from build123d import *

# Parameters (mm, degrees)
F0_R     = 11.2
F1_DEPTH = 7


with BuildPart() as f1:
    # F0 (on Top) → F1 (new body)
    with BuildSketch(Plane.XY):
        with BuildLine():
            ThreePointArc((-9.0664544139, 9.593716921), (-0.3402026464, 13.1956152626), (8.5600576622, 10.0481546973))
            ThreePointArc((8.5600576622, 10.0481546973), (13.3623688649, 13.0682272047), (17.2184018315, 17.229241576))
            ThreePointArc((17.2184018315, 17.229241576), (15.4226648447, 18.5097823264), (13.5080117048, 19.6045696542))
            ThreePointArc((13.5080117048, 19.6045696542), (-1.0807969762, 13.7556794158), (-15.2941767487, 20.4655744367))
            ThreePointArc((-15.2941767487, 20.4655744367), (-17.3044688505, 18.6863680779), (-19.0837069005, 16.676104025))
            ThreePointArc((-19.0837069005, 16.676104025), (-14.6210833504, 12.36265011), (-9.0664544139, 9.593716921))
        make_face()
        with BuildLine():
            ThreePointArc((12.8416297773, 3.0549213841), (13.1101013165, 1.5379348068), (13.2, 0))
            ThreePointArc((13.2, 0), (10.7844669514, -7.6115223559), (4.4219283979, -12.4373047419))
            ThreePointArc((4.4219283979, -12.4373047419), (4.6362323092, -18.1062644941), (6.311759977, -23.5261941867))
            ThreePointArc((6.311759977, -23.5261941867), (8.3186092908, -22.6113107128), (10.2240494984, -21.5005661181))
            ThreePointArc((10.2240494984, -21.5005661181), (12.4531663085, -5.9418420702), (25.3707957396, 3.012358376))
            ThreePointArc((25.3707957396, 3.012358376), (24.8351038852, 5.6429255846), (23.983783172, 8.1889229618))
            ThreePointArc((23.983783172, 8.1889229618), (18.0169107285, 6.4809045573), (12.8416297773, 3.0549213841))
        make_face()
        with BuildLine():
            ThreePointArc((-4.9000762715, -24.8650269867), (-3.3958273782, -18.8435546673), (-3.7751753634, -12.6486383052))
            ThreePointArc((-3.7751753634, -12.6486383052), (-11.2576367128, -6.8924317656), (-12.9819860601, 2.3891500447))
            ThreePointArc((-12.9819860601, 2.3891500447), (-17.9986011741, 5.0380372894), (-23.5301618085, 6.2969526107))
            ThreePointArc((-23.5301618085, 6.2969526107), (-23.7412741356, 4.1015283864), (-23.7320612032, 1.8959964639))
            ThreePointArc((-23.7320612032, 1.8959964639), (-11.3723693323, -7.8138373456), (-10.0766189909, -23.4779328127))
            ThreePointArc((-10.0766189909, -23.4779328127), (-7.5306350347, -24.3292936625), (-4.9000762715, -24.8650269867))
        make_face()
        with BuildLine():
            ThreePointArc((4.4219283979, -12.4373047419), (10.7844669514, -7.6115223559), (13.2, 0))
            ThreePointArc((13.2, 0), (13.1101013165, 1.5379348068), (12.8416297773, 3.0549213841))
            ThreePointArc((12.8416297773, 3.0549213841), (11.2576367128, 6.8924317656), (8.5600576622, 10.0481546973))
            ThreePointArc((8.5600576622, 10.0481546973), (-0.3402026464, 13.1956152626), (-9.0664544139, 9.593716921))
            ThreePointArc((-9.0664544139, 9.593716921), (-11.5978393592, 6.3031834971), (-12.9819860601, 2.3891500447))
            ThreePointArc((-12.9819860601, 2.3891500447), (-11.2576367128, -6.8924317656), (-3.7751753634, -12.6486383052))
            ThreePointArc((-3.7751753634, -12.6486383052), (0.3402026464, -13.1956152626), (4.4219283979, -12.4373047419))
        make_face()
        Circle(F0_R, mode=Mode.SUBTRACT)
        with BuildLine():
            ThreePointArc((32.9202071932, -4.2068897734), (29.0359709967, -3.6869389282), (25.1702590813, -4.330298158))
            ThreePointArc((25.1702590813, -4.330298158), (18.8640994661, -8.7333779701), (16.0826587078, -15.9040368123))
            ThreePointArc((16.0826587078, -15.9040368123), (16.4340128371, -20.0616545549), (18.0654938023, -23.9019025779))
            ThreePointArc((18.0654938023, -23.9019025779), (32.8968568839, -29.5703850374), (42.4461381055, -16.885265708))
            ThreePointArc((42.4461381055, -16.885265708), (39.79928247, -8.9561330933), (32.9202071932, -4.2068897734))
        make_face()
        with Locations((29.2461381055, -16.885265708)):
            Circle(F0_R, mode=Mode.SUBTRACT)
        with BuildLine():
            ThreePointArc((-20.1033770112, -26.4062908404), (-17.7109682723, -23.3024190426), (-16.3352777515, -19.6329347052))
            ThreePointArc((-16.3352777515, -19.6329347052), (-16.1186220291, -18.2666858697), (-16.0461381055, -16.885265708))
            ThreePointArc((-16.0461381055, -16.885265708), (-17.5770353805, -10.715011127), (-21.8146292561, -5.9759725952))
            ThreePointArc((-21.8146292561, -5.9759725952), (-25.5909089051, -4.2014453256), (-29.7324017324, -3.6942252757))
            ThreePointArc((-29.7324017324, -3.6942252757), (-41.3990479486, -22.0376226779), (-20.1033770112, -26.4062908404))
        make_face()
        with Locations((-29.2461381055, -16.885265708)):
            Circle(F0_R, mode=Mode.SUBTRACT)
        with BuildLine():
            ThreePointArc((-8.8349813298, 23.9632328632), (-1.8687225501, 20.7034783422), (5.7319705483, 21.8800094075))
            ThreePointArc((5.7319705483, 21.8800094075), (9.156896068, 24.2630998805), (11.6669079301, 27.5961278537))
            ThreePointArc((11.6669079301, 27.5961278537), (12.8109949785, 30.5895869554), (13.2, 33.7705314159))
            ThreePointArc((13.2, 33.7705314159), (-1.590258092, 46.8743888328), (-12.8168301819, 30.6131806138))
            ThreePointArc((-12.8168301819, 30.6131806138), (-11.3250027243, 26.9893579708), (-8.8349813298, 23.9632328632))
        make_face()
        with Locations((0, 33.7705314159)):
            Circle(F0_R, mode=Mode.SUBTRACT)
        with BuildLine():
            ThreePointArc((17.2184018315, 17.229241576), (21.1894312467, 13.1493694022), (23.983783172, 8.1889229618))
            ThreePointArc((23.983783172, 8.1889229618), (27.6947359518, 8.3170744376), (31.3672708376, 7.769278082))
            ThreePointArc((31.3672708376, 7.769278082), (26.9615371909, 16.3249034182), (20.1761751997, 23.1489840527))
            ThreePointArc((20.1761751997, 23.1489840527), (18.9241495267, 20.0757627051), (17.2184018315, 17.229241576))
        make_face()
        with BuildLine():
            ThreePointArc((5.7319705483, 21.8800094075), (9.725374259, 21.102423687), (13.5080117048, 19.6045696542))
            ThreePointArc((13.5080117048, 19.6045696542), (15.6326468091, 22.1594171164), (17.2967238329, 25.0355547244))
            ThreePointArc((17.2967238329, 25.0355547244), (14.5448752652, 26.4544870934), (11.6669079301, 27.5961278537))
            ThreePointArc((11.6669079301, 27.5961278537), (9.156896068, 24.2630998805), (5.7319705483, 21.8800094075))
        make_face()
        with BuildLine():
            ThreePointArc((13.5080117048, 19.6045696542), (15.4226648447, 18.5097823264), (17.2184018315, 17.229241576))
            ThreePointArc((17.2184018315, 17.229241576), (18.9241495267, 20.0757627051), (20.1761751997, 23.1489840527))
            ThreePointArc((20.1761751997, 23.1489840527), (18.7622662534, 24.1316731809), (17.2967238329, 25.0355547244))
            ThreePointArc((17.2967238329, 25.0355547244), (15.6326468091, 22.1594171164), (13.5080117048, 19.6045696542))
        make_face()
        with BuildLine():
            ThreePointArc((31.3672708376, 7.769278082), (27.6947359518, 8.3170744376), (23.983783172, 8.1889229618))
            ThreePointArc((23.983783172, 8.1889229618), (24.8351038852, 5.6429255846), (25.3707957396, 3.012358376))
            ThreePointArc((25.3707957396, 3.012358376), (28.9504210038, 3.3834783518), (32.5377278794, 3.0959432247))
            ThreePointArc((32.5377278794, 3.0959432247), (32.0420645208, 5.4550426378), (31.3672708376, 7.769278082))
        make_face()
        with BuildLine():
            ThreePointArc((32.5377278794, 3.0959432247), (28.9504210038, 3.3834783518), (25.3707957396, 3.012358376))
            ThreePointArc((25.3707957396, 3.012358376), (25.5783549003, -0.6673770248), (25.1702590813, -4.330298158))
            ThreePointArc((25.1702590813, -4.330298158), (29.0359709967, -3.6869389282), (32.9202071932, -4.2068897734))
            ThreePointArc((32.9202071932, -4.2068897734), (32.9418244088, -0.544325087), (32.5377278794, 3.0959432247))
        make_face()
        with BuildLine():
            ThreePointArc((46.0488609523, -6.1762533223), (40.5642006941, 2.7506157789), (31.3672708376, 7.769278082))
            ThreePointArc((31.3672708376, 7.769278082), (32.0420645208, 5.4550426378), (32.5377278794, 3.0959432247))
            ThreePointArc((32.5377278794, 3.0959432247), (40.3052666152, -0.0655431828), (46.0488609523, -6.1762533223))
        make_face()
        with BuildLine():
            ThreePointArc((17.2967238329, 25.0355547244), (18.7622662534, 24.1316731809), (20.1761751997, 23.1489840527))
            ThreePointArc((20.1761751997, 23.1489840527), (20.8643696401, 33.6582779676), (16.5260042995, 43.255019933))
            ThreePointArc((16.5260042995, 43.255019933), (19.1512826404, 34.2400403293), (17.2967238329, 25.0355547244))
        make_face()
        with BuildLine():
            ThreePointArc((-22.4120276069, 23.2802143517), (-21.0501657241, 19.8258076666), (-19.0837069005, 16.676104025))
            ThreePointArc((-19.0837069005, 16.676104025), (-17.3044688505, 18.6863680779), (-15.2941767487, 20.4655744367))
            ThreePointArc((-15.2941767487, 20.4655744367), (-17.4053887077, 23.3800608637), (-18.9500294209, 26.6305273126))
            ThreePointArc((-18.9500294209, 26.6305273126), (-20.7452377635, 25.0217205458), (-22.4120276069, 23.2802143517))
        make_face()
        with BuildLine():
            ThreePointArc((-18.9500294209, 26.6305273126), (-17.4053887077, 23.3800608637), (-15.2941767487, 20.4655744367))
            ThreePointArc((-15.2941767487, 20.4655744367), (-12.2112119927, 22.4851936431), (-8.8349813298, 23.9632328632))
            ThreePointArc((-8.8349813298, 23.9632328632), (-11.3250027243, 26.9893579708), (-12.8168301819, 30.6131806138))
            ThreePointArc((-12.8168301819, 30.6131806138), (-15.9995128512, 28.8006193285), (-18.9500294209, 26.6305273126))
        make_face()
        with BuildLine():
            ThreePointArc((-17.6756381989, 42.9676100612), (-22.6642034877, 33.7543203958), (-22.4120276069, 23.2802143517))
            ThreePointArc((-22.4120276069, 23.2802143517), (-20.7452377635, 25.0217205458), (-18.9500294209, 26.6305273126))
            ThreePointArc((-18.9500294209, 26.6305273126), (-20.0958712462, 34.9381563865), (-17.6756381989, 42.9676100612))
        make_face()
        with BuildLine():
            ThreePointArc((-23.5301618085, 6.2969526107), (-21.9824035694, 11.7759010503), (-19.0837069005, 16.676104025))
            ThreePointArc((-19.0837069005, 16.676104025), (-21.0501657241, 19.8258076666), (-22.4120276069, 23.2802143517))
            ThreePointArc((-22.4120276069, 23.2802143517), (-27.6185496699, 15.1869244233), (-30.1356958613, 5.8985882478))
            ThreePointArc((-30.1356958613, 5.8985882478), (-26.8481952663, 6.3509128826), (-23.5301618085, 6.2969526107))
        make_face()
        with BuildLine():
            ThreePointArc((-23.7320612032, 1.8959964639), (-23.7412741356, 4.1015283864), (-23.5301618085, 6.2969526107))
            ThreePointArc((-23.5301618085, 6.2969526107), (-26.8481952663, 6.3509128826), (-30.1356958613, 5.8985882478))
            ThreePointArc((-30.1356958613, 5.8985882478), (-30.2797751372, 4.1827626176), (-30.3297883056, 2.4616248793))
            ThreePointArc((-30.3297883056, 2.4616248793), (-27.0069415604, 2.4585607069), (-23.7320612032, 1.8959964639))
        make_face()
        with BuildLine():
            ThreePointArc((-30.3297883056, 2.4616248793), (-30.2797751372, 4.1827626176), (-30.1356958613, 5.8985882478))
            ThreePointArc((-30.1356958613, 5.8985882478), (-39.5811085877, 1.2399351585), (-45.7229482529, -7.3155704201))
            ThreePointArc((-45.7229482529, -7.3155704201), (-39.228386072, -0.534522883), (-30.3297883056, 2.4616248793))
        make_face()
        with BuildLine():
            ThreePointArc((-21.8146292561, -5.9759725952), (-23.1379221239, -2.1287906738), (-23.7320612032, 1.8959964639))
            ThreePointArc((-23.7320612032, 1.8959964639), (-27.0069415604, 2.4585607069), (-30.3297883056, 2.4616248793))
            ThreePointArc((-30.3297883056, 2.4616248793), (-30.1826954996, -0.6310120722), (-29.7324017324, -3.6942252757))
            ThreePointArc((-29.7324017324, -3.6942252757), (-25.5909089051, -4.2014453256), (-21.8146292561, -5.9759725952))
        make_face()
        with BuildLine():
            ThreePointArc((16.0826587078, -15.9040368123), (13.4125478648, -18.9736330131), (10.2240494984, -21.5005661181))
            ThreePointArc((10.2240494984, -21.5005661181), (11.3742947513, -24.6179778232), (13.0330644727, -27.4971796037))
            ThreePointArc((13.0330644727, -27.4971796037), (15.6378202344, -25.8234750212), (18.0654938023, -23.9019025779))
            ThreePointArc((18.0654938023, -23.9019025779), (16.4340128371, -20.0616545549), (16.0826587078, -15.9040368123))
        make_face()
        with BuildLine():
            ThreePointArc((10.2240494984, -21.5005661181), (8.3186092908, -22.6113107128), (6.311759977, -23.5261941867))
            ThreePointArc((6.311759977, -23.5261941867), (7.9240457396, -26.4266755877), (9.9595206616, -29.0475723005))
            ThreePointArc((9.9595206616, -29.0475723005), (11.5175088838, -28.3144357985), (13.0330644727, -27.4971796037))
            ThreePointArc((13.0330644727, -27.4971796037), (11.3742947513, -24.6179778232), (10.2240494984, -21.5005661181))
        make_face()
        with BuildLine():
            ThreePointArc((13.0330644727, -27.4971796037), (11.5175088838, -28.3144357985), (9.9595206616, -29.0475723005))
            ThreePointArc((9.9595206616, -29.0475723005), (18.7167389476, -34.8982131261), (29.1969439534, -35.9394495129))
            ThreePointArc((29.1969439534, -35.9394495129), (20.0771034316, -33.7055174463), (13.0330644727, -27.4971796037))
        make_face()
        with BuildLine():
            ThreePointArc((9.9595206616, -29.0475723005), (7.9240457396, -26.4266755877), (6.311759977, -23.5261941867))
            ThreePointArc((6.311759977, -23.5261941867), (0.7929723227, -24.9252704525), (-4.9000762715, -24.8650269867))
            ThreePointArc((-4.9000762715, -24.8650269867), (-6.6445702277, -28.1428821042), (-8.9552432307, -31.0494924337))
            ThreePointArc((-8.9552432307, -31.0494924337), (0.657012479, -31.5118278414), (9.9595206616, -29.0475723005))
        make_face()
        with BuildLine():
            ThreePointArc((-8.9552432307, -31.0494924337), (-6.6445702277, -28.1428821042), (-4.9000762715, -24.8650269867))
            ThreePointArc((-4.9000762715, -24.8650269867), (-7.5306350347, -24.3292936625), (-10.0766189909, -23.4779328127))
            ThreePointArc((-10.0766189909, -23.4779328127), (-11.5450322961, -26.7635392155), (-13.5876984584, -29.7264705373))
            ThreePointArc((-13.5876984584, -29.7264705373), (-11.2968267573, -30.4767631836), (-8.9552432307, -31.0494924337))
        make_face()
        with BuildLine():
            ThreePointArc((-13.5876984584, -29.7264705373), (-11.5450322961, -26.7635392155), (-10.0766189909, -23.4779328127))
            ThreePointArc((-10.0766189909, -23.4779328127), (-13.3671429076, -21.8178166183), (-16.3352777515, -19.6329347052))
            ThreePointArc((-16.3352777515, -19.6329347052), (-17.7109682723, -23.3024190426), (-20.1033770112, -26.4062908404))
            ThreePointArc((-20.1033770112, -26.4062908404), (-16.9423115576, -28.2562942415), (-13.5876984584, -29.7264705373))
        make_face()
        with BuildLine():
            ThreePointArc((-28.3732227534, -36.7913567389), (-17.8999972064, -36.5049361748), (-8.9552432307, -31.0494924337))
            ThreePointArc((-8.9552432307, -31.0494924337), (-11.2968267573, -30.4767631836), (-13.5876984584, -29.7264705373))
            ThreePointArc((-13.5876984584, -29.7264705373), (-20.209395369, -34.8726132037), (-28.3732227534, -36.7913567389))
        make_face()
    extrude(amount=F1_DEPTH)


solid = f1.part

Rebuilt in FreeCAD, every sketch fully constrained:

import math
import FreeCAD as App
import Part
import Sketcher
from FreeCAD import Vector
Q = App.Units.Quantity

doc = App.newDocument("Part")
body = doc.addObject("PartDesign::Body", "Body")

# Sketch on XY plane
sketch1 = doc.addObject("Sketcher::SketchObject", "Sketch")
body.addObject(sketch1)
sketch1.AttachmentSupport = (doc.XY_Plane, [""])
sketch1.MapMode = "FlatFace"
sketch1.addGeometry([
    Part.ArcOfCircle(Part.Circle(Vector(-2.7, -0.2, 0), Vector(0, 0, 1), 31.5), math.radians(-102), math.radians(-66)),  # 0
    Part.ArcOfCircle(Part.Circle(Vector(26, -14.5, 0), Vector(0, 0, 1), 21.7), math.radians(-138), math.radians(-82)),  # 1
    Part.ArcOfCircle(Part.Circle(Vector(29.2, -16.3, 0), Vector(0, 0, 1), 19.7), math.radians(-145), math.radians(-90)),  # 2
    Part.ArcOfCircle(Part.Circle(Vector(-2.7, -0.2, 0), Vector(0, 0, 1), 31.5), math.radians(-60.1), math.radians(-48.82)),  # 3
    Part.ArcOfCircle(Part.Circle(Vector(29.2, -16.9, 0), Vector(0, 0, 1), 13.2), math.radians(-148), math.radians(0)),  # 4
    Part.ArcOfCircle(Part.Circle(Vector(29.2, -16.9, 0), Vector(0, 0, 1), 13.2), math.radians(0), math.radians(74)),  # 5
    Part.ArcOfCircle(Part.Circle(Vector(1.5, -2.2, 0), Vector(0, 0, 1), 31.5), math.radians(-3.67), math.radians(9.67)),  # 6
    Part.ArcOfCircle(Part.Circle(Vector(29.2, -16.3, 0), Vector(0, 0, 1), 19.7), math.radians(31), math.radians(80)),  # 7
    Part.ArcOfCircle(Part.Circle(Vector(26.5, -12, 0), Vector(0, 0, 1), 20.4), math.radians(17), math.radians(76)),  # 8
    Part.ArcOfCircle(Part.Circle(Vector(1.5, -2.2, 0), Vector(0, 0, 1), 31.5), math.radians(18), math.radians(54)),  # 9
    Part.ArcOfCircle(Part.Circle(Vector(-0.5, 29.8, 0), Vector(0, 0, 1), 21.7), math.radians(-18), math.radians(38)),  # 10
    Part.ArcOfCircle(Part.Circle(Vector(-0.5, 33.4, 0), Vector(0, 0, 1), 19.7), math.radians(-25), math.radians(30)),  # 11
    Part.ArcOfCircle(Part.Circle(Vector(1.5, -2.2, 0), Vector(0, 0, 1), 31.5), math.radians(59.9), math.radians(71.18)),  # 12
    Part.ArcOfCircle(Part.Circle(Vector(0, 33.8, 0), Vector(0, 0, 1), 13.2), math.radians(-28), math.radians(0)),  # 13
    Part.ArcOfCircle(Part.Circle(Vector(0, 33.8, 0), Vector(0, 0, 1), 13.2), math.radians(0), math.radians(194)),  # 14
    Part.ArcOfCircle(Part.Circle(Vector(1.1, 2.4, 0), Vector(0, 0, 1), 31.5), math.radians(116.33), math.radians(129.67)),  # 15
    Part.ArcOfCircle(Part.Circle(Vector(-0.5, 33.4, 0), Vector(0, 0, 1), 19.7), math.radians(151), math.radians(200)),  # 16
    Part.ArcOfCircle(Part.Circle(Vector(-2.9, 29, 0), Vector(0, 0, 1), 20.4), math.radians(137), math.radians(196)),  # 17
    Part.ArcOfCircle(Part.Circle(Vector(1.1, 2.4, 0), Vector(0, 0, 1), 31.5), math.radians(138), math.radians(174)),  # 18
    Part.ArcOfCircle(Part.Circle(Vector(-25.5, -15.3, 0), Vector(0, 0, 1), 21.7), math.radians(102), math.radians(158)),  # 19
    Part.ArcOfCircle(Part.Circle(Vector(-28.7, -17.1, 0), Vector(0, 0, 1), 19.7), math.radians(95), math.radians(150)),  # 20
    Part.ArcOfCircle(Part.Circle(Vector(1.1, 2.4, 0), Vector(0, 0, 1), 31.5), math.radians(179.9), math.radians(191.18)),  # 21
    Part.ArcOfCircle(Part.Circle(Vector(-29.2, -16.9, 0), Vector(0, 0, 1), 13.2), math.radians(92), math.radians(314)),  # 22
    Part.ArcOfCircle(Part.Circle(Vector(-2.7, -0.2, 0), Vector(0, 0, 1), 31.5), math.radians(-123.67), math.radians(-110.33)),  # 23
    Part.ArcOfCircle(Part.Circle(Vector(-28.7, -17.1, 0), Vector(0, 0, 1), 19.7), math.radians(-89), math.radians(-40)),  # 24
    Part.ArcOfCircle(Part.Circle(Vector(-23.7, -17, 0), Vector(0, 0, 1), 20.4), math.radians(-103), math.radians(-44)),  # 25
    Part.ArcOfCircle(Part.Circle(Vector(-28.7, -17.1, 0), Vector(0, 0, 1), 19.7), math.radians(-19), math.radians(75)),  # 26
    Part.ArcOfCircle(Part.Circle(Vector(-1.8, -3, 0), Vector(0, 0, 1), 22.1), math.radians(-131.15), math.radians(-111.98)),  # 27
    Part.ArcOfCircle(Part.Circle(Vector(-29.2, -16.9, 0), Vector(0, 0, 1), 13.2), math.radians(-12.01), math.radians(0)),  # 28
    Part.ArcOfCircle(Part.Circle(Vector(-29.2, -16.9, 0), Vector(0, 0, 1), 13.2), math.radians(0), math.radians(56)),  # 29
    Part.ArcOfCircle(Part.Circle(Vector(-1.7, 3.1, 0), Vector(0, 0, 1), 22.1), math.radians(-177), math.radians(-156)),  # 30
    Part.Circle(Vector(-29.2, -16.9, 0), Vector(0, 0, 1), 11.2),  # 31
    Part.ArcOfCircle(Part.Circle(Vector(-1.8, -3, 0), Vector(0, 0, 1), 22.1), math.radians(-98), math.radians(-68)),  # 32
    Part.ArcOfCircle(Part.Circle(Vector(-23.7, -17, 0), Vector(0, 0, 1), 20.4), math.radians(-23), math.radians(12)),  # 33
    Part.ArcOfCircle(Part.Circle(Vector(0, 0, 0), Vector(0, 0, 1), 13.2), math.radians(-107), math.radians(-70)),  # 34
    Part.ArcOfCircle(Part.Circle(Vector(26, -14.5, 0), Vector(0, 0, 1), 21.7), math.radians(175), math.radians(205)),  # 35
    Part.Circle(Vector(29.2, -16.9, 0), Vector(0, 0, 1), 11.2),  # 36
    Part.ArcOfCircle(Part.Circle(Vector(-1.8, -3, 0), Vector(0, 0, 1), 22.1), math.radians(-57), math.radians(-36)),  # 37
    Part.ArcOfCircle(Part.Circle(Vector(29.2, -16.3, 0), Vector(0, 0, 1), 19.7), math.radians(101), math.radians(195)),  # 38
    Part.ArcOfCircle(Part.Circle(Vector(3.5, -0.1, 0), Vector(0, 0, 1), 22.1), math.radians(-11.15), math.radians(8.02)),  # 39
    Part.ArcOfCircle(Part.Circle(Vector(29.2, -16.9, 0), Vector(0, 0, 1), 13.2), math.radians(108), math.radians(176)),  # 40
    Part.Circle(Vector(0, 0, 0), Vector(0, 0, 1), 11.2),  # 41
    Part.ArcOfCircle(Part.Circle(Vector(-25.5, -15.3, 0), Vector(0, 0, 1), 21.7), math.radians(55), math.radians(85)),  # 42
    Part.ArcOfCircle(Part.Circle(Vector(-1.7, 3.1, 0), Vector(0, 0, 1), 22.1), math.radians(142), math.radians(172)),  # 43
    Part.ArcOfCircle(Part.Circle(Vector(-2.9, 29, 0), Vector(0, 0, 1), 20.4), math.radians(-143), math.radians(-108)),  # 44
    Part.ArcOfCircle(Part.Circle(Vector(0, 0, 0), Vector(0, 0, 1), 13.2), math.radians(133), math.radians(170)),  # 45
    Part.ArcOfCircle(Part.Circle(Vector(0, 33.8, 0), Vector(0, 0, 1), 13.2), math.radians(-132), math.radians(-64)),  # 46
    Part.ArcOfCircle(Part.Circle(Vector(3.5, -0.1, 0), Vector(0, 0, 1), 22.1), math.radians(63), math.radians(84)),  # 47
    Part.ArcOfCircle(Part.Circle(Vector(-0.5, 33.4, 0), Vector(0, 0, 1), 19.7), math.radians(-139), math.radians(-45)),  # 48
    Part.ArcOfCircle(Part.Circle(Vector(-1.7, 3.1, 0), Vector(0, 0, 1), 22.1), math.radians(108.85), math.radians(128.02)),  # 49
    Part.ArcOfCircle(Part.Circle(Vector(3.5, -0.1, 0), Vector(0, 0, 1), 22.1), math.radians(22), math.radians(52)),  # 50
    Part.ArcOfCircle(Part.Circle(Vector(26.5, -12, 0), Vector(0, 0, 1), 20.4), math.radians(97), math.radians(132)),  # 51
    Part.ArcOfCircle(Part.Circle(Vector(0, 0, 0), Vector(0, 0, 1), 13.2), math.radians(13), math.radians(50)),  # 52
    Part.ArcOfCircle(Part.Circle(Vector(-0.5, 29.8, 0), Vector(0, 0, 1), 21.7), math.radians(-65), math.radians(-35)),  # 53
    Part.Circle(Vector(0, 33.8, 0), Vector(0, 0, 1), 11.2),  # 54
], False)
sketch1.addConstraint([
    Sketcher.Constraint("Coincident", 0, 2, 1, 1),
    Sketcher.Constraint("Coincident", 1, 2, 2, 2),
    Sketcher.Constraint("Coincident", 2, 1, 3, 1),
    Sketcher.Constraint("Coincident", 3, 2, 4, 1),
    Sketcher.Constraint("Tangent", 4, 2, 5, 1),
    Sketcher.Constraint("Coincident", 5, 2, 6, 1),
    Sketcher.Constraint("Coincident", 6, 2, 7, 2),
    Sketcher.Constraint("Coincident", 7, 1, 8, 1),
    Sketcher.Constraint("Coincident", 8, 2, 9, 1),
    Sketcher.Constraint("Coincident", 9, 2, 10, 1),
    Sketcher.Constraint("Coincident", 10, 2, 11, 2),
    Sketcher.Constraint("Coincident", 11, 1, 12, 1),
    Sketcher.Constraint("Coincident", 12, 2, 13, 1),
    Sketcher.Constraint("Tangent", 13, 2, 14, 1),
    Sketcher.Constraint("Coincident", 14, 2, 15, 1),
    Sketcher.Constraint("Coincident", 15, 2, 16, 2),
    Sketcher.Constraint("Coincident", 16, 1, 17, 1),
    Sketcher.Constraint("Coincident", 17, 2, 18, 1),
    Sketcher.Constraint("Coincident", 18, 2, 19, 1),
    Sketcher.Constraint("Coincident", 19, 2, 20, 2),
    Sketcher.Constraint("Coincident", 20, 1, 21, 1),
    Sketcher.Constraint("Coincident", 21, 2, 22, 1),
    Sketcher.Constraint("Coincident", 22, 2, 23, 1),
    Sketcher.Constraint("Coincident", 23, 2, 24, 2),
    Sketcher.Constraint("Coincident", 24, 1, 25, 1),
    Sketcher.Constraint("Coincident", 25, 2, 0, 1),
    Sketcher.Constraint("Coincident", 26, 1, 27, 2),
    Sketcher.Constraint("Coincident", 27, 1, 28, 1),
    Sketcher.Constraint("Tangent", 28, 2, 29, 1),
    Sketcher.Constraint("Coincident", 29, 2, 30, 2),
    Sketcher.Constraint("Coincident", 30, 1, 26, 2),
    Sketcher.Constraint("Coincident", 32, 1, 33, 1),
    Sketcher.Constraint("Coincident", 33, 2, 34, 1),
    Sketcher.Constraint("Coincident", 34, 2, 35, 1),
    Sketcher.Constraint("Coincident", 35, 2, 32, 2),
    Sketcher.Constraint("Coincident", 37, 1, 38, 2),
    Sketcher.Constraint("Coincident", 38, 1, 39, 2),
    Sketcher.Constraint("Coincident", 39, 1, 40, 1),
    Sketcher.Constraint("Coincident", 40, 2, 37, 2),
    Sketcher.Constraint("Coincident", 42, 2, 43, 2),
    Sketcher.Constraint("Coincident", 43, 1, 44, 1),
    Sketcher.Constraint("Coincident", 44, 2, 45, 1),
    Sketcher.Constraint("Coincident", 45, 2, 42, 1),
    Sketcher.Constraint("Coincident", 46, 2, 47, 2),
    Sketcher.Constraint("Coincident", 47, 1, 48, 2),
    Sketcher.Constraint("Coincident", 48, 1, 49, 2),
    Sketcher.Constraint("Coincident", 49, 1, 46, 1),
    Sketcher.Constraint("Coincident", 50, 1, 51, 1),
    Sketcher.Constraint("Coincident", 51, 2, 52, 1),
    Sketcher.Constraint("Coincident", 52, 2, 53, 1),
    Sketcher.Constraint("Coincident", 53, 2, 50, 2),
    Sketcher.Constraint("Coincident", 34, 3, -1, 1),
    Sketcher.Constraint("Coincident", 41, 3, -1, 1),
    Sketcher.Constraint("Coincident", 45, 3, -1, 1),
    Sketcher.Constraint("Coincident", 52, 3, -1, 1),
    Sketcher.Constraint("Coincident", 3, 3, 0, 3),
    Sketcher.Constraint("Coincident", 7, 3, 2, 3),
    Sketcher.Constraint("Coincident", 9, 3, 6, 3),
    Sketcher.Constraint("Coincident", 12, 3, 6, 3),
    Sketcher.Constraint("Coincident", 16, 3, 11, 3),
    Sketcher.Constraint("Coincident", 18, 3, 15, 3),
    Sketcher.Constraint("Coincident", 21, 3, 15, 3),
    Sketcher.Constraint("Coincident", 23, 3, 0, 3),
    Sketcher.Constraint("Coincident", 24, 3, 20, 3),
    Sketcher.Constraint("Coincident", 26, 3, 20, 3),
    Sketcher.Constraint("Coincident", 28, 3, 22, 3),
    Sketcher.Constraint("Coincident", 31, 3, 22, 3),
    Sketcher.Constraint("Coincident", 32, 3, 27, 3),
    Sketcher.Constraint("Coincident", 33, 3, 25, 3),
    Sketcher.Constraint("Coincident", 35, 3, 1, 3),
    Sketcher.Constraint("Coincident", 36, 3, 4, 3),
    Sketcher.Constraint("Coincident", 37, 3, 27, 3),
    Sketcher.Constraint("Coincident", 38, 3, 2, 3),
    Sketcher.Constraint("Coincident", 40, 3, 4, 3),
    Sketcher.Constraint("Coincident", 42, 3, 19, 3),
    Sketcher.Constraint("Coincident", 43, 3, 30, 3),
    Sketcher.Constraint("Coincident", 44, 3, 17, 3),
    Sketcher.Constraint("Coincident", 46, 3, 13, 3),
    Sketcher.Constraint("Coincident", 47, 3, 39, 3),
    Sketcher.Constraint("Coincident", 48, 3, 11, 3),
    Sketcher.Constraint("Coincident", 49, 3, 30, 3),
    Sketcher.Constraint("Coincident", 50, 3, 39, 3),
    Sketcher.Constraint("Coincident", 51, 3, 8, 3),
    Sketcher.Constraint("Coincident", 53, 3, 10, 3),
    Sketcher.Constraint("Coincident", 54, 3, 13, 3),
    Sketcher.Constraint("Equal", 0, 3),
    Sketcher.Constraint("Equal", 4, 5),
    Sketcher.Constraint("Equal", 3, 6),
    Sketcher.Constraint("Equal", 2, 7),
    Sketcher.Constraint("Equal", 6, 9),
    Sketcher.Constraint("Equal", 1, 10),
    Sketcher.Constraint("Equal", 7, 11),
    Sketcher.Constraint("Equal", 9, 12),
    Sketcher.Constraint("Equal", 5, 13),
    Sketcher.Constraint("Equal", 13, 14),
    Sketcher.Constraint("Equal", 12, 15),
    Sketcher.Constraint("Equal", 11, 16),
    Sketcher.Constraint("Equal", 8, 17),
    Sketcher.Constraint("Equal", 15, 18),
    Sketcher.Constraint("Equal", 10, 19),
    Sketcher.Constraint("Equal", 16, 20),
    Sketcher.Constraint("Equal", 18, 21),
    Sketcher.Constraint("Equal", 14, 22),
    Sketcher.Constraint("Equal", 21, 23),
    Sketcher.Constraint("Equal", 20, 24),
    Sketcher.Constraint("Equal", 17, 25),
    Sketcher.Constraint("Equal", 24, 26),
    Sketcher.Constraint("Equal", 22, 28),
    Sketcher.Constraint("Equal", 28, 29),
    Sketcher.Constraint("Equal", 27, 30),
    Sketcher.Constraint("Equal", 30, 32),
    Sketcher.Constraint("Equal", 25, 33),
    Sketcher.Constraint("Equal", 29, 34),
    Sketcher.Constraint("Equal", 19, 35),
    Sketcher.Constraint("Equal", 31, 36),
    Sketcher.Constraint("Equal", 32, 37),
    Sketcher.Constraint("Equal", 26, 38),
    Sketcher.Constraint("Equal", 37, 39),
    Sketcher.Constraint("Equal", 34, 40),
    Sketcher.Constraint("Equal", 36, 41),
    Sketcher.Constraint("Equal", 35, 42),
    Sketcher.Constraint("Equal", 39, 43),
    Sketcher.Constraint("Equal", 33, 44),
    Sketcher.Constraint("Equal", 40, 45),
    Sketcher.Constraint("Equal", 45, 46),
    Sketcher.Constraint("Equal", 43, 47),
    Sketcher.Constraint("Equal", 38, 48),
    Sketcher.Constraint("Equal", 47, 49),
    Sketcher.Constraint("Equal", 49, 50),
    Sketcher.Constraint("Equal", 44, 51),
    Sketcher.Constraint("Equal", 46, 52),
    Sketcher.Constraint("Equal", 42, 53),
    Sketcher.Constraint("Equal", 41, 54),
    Sketcher.Constraint("Symmetric", 4, 3, 22, 3, -2),
    Sketcher.Constraint("PointOnObject", 13, 3, -2),
    Sketcher.Constraint("Horizontal", 40, 3, 4, 2),
    Sketcher.Constraint("Horizontal", 54, 3, 13, 2),
    Sketcher.Constraint("Horizontal", 4, 2, 28, 2),
    Sketcher.Constraint("Diameter", 31, Q("22.4 mm")),
    Sketcher.Constraint("Radius", 4, Q("13.2 mm")),
    Sketcher.Constraint("Radius", 1, Q("21.711661 mm")),
    Sketcher.Constraint("Radius", 0, Q("31.468297 mm")),
    Sketcher.Constraint("Radius", 2, Q("19.662136 mm")),
    Sketcher.Constraint("Radius", 8, Q("20.364557 mm")),
    Sketcher.Constraint("Radius", 27, Q("22.055324 mm")),
    Sketcher.Constraint("DistanceX", -1, 1, 6, 3, Q("1.516599 mm")),
    Sketcher.Constraint("DistanceX", 21, 2, -1, 1, Q("29.732402 mm")),
    Sketcher.Constraint("DistanceX", 23, 2, -1, 1, Q("13.587698 mm")),
    Sketcher.Constraint("DistanceY", 39, 1, -1, 1, Q("4.330298 mm")),
    Sketcher.Constraint("DistanceX", -1, 1, 53, 2, Q("17.218402 mm")),
    Sketcher.Constraint("DistanceY", 2, 3, -1, 1, Q("16.277321 mm")),
    Sketcher.Constraint("DistanceX", -1, 1, 4, 3, Q("29.246138 mm")),
    Sketcher.Constraint("DistanceX", -1, 1, 8, 3, Q("26.539169 mm")),
    Sketcher.Constraint("DistanceY", 8, 3, -1, 1, Q("12.01467 mm")),
    Sketcher.Constraint("DistanceY", -1, 1, 13, 3, Q("33.770531 mm")),
    Sketcher.Constraint("DistanceY", -1, 1, 15, 3, Q("2.40851 mm")),
    Sketcher.Constraint("DistanceY", -1, 1, 17, 3, Q("28.99093 mm")),
    Sketcher.Constraint("DistanceX", 19, 3, -1, 1, Q("25.54119 mm")),
    Sketcher.Constraint("DistanceX", 20, 3, -1, 1, Q("28.686432 mm")),
    Sketcher.Constraint("DistanceY", 25, 3, -1, 1, Q("16.97626 mm")),
    Sketcher.Constraint("DistanceX", 27, 3, -1, 1, Q("1.822129 mm")),
    Sketcher.Constraint("DistanceY", 27, 3, -1, 1, Q("3.025531 mm")),
    Sketcher.Constraint("DistanceX", -1, 1, 39, 3, Q("3.531251 mm")),
    Sketcher.Constraint("DistanceX", -1, 1, 0, 2, Q("9.959521 mm")),
    Sketcher.Constraint("DistanceY", 2, 1, -1, 1, Q("27.49718 mm")),
    Sketcher.Constraint("DistanceY", 5, 2, -1, 1, Q("4.20689 mm")),
    Sketcher.Constraint("DistanceX", -1, 1, 7, 1, Q("46.048861 mm")),
    Sketcher.Constraint("DistanceX", -1, 1, 8, 2, Q("31.367271 mm")),
    Sketcher.Constraint("DistanceY", -1, 1, 10, 2, Q("43.25502 mm")),
    Sketcher.Constraint("DistanceX", 15, 2, -1, 1, Q("18.950029 mm")),
    Sketcher.Constraint("DistanceX", 16, 1, -1, 1, Q("17.675638 mm")),
    Sketcher.Constraint("DistanceY", -1, 1, 16, 1, Q("42.96761 mm")),
    Sketcher.Constraint("DistanceY", -1, 1, 18, 2, Q("5.898588 mm")),
    Sketcher.Constraint("DistanceX", 19, 2, -1, 1, Q("45.722948 mm")),
    Sketcher.Constraint("DistanceX", 29, 2, -1, 1, Q("21.814629 mm")),
    Sketcher.Constraint("DistanceX", 30, 1, -1, 1, Q("23.732061 mm")),
    Sketcher.Constraint("DistanceY", 33, 2, -1, 1, Q("12.648638 mm")),
    Sketcher.Constraint("DistanceX", -1, 1, 34, 2, Q("4.421928 mm")),
])
pad1 = doc.addObject("PartDesign::Pad", "Pad")
body.addObject(pad1)
pad1.Profile = sketch1
pad1.Length = 7

doc.recompute()
